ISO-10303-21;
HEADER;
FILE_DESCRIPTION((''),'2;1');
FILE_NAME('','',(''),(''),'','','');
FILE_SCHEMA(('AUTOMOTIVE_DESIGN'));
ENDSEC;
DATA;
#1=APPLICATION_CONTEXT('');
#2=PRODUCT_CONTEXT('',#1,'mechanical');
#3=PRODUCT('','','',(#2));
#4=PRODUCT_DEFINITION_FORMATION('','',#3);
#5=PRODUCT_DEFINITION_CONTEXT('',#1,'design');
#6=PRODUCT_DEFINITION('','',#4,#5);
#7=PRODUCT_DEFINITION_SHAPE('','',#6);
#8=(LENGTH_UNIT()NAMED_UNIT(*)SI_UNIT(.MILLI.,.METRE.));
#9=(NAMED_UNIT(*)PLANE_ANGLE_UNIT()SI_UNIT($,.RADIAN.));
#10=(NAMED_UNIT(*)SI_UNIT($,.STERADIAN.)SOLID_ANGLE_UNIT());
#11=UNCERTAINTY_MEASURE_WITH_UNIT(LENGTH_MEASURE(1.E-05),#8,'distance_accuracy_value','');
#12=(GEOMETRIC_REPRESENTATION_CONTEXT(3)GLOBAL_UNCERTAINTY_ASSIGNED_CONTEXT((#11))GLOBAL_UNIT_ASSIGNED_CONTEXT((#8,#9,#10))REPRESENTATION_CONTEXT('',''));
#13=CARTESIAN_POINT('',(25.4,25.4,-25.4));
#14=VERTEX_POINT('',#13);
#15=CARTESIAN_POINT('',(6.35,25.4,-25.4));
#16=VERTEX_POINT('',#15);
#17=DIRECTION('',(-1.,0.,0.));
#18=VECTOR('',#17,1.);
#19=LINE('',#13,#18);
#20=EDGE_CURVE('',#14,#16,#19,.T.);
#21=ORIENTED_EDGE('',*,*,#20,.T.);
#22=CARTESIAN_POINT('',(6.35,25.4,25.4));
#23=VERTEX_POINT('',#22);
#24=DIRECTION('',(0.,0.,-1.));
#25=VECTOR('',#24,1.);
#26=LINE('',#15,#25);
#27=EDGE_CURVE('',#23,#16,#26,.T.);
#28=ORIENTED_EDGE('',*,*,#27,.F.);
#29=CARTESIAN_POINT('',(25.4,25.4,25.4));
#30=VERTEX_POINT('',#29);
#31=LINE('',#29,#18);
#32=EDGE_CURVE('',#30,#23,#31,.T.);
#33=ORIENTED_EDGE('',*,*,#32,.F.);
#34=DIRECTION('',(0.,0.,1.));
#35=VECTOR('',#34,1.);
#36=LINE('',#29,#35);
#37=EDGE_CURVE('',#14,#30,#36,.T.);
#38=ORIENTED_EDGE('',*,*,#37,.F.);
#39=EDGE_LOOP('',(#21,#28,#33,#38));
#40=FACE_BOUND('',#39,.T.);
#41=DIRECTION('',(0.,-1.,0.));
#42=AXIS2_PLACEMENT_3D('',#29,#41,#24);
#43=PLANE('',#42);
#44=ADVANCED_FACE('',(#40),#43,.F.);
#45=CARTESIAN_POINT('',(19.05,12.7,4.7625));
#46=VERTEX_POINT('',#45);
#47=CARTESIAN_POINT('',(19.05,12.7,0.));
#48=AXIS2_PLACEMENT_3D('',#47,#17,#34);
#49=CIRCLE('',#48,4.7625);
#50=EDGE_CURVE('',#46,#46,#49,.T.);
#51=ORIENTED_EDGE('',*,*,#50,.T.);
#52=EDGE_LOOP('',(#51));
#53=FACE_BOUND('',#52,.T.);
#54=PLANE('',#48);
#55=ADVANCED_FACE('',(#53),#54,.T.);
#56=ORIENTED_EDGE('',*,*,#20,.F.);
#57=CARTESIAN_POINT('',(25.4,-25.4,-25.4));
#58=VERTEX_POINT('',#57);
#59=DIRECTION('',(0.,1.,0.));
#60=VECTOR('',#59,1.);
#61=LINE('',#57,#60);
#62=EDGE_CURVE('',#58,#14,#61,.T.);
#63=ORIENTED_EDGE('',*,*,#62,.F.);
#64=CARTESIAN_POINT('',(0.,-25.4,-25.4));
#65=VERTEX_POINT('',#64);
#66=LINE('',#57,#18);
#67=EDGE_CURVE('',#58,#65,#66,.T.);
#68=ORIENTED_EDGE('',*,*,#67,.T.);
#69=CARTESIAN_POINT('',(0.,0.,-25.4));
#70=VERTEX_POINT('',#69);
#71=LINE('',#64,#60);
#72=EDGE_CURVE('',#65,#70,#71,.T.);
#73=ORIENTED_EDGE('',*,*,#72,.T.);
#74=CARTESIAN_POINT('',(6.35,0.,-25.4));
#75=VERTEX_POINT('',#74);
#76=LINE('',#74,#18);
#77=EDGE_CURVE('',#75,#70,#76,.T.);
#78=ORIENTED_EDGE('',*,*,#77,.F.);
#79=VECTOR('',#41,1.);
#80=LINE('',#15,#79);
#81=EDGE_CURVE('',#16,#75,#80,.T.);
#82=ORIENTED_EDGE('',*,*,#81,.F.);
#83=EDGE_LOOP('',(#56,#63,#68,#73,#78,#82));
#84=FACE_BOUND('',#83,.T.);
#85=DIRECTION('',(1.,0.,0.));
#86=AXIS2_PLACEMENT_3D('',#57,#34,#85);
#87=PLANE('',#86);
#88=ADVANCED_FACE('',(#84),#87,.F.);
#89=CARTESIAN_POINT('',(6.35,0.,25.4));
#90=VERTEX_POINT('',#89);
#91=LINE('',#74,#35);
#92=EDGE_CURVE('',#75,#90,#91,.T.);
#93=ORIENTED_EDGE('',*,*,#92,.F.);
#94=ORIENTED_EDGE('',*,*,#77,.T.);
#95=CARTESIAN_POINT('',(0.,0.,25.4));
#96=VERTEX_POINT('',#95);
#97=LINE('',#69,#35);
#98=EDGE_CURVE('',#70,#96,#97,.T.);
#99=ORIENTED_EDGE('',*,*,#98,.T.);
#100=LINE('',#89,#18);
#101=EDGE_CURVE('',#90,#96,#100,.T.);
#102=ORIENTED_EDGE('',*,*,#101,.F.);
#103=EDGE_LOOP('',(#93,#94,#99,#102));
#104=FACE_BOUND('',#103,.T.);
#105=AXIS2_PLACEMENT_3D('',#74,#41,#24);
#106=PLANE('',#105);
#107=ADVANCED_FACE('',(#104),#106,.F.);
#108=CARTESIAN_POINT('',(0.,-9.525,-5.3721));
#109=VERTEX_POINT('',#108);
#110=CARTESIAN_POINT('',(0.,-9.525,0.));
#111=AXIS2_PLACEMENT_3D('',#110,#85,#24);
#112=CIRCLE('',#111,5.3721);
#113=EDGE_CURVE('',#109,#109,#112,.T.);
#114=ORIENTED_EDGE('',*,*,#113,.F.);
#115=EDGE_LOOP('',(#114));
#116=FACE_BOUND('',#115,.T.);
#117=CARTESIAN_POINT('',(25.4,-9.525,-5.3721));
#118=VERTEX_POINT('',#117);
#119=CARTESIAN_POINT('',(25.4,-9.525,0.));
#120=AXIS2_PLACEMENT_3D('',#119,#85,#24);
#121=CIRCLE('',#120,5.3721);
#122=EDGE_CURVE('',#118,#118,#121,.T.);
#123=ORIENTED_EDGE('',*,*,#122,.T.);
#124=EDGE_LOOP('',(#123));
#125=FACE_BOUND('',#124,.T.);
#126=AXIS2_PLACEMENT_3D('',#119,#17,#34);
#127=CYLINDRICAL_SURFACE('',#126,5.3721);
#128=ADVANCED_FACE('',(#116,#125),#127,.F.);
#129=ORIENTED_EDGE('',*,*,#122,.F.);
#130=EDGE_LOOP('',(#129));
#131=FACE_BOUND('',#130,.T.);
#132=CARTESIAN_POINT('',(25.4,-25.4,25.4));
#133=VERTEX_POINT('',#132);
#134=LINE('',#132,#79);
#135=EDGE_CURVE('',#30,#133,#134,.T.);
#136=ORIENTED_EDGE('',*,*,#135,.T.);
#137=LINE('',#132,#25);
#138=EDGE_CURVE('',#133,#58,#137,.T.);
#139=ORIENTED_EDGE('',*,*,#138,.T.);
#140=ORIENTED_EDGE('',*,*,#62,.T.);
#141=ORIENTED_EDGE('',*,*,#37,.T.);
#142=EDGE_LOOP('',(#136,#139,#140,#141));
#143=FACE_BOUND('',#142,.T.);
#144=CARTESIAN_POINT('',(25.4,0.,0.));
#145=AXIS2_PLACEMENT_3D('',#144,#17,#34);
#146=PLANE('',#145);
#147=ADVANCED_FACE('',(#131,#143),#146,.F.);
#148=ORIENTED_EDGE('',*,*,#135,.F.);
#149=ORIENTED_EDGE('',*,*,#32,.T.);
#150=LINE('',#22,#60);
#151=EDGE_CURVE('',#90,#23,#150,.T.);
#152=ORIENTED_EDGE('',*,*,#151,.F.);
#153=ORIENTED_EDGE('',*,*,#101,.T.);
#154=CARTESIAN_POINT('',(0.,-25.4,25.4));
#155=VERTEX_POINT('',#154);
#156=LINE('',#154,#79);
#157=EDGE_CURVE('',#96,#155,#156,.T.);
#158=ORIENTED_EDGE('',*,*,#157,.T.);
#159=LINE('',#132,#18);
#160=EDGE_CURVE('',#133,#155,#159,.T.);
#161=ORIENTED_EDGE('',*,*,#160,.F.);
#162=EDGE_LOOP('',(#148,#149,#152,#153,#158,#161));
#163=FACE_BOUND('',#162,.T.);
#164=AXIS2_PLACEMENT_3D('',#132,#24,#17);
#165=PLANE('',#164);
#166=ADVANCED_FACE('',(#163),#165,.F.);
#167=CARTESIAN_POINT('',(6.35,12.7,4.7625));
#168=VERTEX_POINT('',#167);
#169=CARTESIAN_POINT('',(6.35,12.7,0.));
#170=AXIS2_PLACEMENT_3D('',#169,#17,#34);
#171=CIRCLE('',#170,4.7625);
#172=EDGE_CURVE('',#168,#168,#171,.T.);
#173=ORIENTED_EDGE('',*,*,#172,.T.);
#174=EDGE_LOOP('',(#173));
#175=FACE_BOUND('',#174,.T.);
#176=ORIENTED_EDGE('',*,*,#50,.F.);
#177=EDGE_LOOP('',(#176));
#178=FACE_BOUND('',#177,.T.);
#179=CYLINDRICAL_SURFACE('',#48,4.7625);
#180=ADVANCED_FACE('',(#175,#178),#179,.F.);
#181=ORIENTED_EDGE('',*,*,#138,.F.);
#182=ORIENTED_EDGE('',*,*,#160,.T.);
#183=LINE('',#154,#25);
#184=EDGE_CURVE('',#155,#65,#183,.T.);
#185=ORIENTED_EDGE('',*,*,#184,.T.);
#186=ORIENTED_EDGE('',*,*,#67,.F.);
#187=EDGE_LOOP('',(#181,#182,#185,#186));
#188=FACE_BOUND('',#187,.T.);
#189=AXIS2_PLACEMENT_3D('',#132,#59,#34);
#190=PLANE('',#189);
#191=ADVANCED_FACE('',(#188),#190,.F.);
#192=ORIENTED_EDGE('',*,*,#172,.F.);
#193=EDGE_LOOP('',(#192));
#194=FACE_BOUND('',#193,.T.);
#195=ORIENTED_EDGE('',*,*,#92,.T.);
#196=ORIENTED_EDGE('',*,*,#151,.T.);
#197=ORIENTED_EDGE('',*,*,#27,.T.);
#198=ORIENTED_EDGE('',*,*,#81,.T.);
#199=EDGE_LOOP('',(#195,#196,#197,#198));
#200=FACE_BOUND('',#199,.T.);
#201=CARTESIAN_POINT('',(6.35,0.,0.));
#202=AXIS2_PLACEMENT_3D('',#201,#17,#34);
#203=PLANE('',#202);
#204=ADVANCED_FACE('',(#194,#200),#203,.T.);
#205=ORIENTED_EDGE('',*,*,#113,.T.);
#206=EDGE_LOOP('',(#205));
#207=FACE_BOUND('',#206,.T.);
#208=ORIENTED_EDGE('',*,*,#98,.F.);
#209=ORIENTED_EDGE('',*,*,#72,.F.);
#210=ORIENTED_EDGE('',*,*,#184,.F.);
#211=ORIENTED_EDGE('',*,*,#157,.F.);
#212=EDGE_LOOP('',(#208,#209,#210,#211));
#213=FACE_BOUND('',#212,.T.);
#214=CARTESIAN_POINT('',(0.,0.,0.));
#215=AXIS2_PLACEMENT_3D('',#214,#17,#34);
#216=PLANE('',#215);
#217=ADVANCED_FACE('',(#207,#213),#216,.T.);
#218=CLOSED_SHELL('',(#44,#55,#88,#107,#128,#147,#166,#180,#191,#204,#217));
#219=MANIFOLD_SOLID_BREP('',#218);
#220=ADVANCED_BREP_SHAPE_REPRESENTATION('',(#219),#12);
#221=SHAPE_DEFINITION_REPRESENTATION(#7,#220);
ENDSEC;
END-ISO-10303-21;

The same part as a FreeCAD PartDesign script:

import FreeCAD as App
import Part
import Sketcher
Q = App.Units.Quantity

doc = App.newDocument("Part")
body = doc.addObject("PartDesign::Body", "Body")

# Sketch on YZ plane
sketch1 = body.newObject("Sketcher::SketchObject", "Sketch")
sketch1.AttachmentSupport = (doc.getObject("YZ_Plane"), [""])
sketch1.MapMode = "FlatFace"
sketch1.addGeometry([
    Part.LineSegment(App.Vector(25.4, 25.4, 0), App.Vector(-25.4, 25.4, 0)),  # 0
    Part.LineSegment(App.Vector(-25.4, 25.4, 0), App.Vector(-25.4, -25.4, 0)),  # 1
    Part.LineSegment(App.Vector(-25.4, -25.4, 0), App.Vector(25.4, -25.4, 0)),  # 2
    Part.LineSegment(App.Vector(25.4, -25.4, 0), App.Vector(25.4, 25.4, 0)),  # 3
    Part.Circle(App.Vector(-9.525, 0, 0), App.Vector(0, 0, 1), 5.3721),  # 4
], False)
sketch1.addConstraint([
    Sketcher.Constraint("Coincident", 0, 2, 1, 1),
    Sketcher.Constraint("Coincident", 1, 2, 2, 1),
    Sketcher.Constraint("Coincident", 2, 2, 3, 1),
    Sketcher.Constraint("Coincident", 3, 2, 0, 1),
    Sketcher.Constraint("Horizontal", 0),
    Sketcher.Constraint("Vertical", 1),
    Sketcher.Constraint("Horizontal", 2),
    Sketcher.Constraint("Vertical", 3),
    Sketcher.Constraint("Symmetric", 0, 2, 2, 2, -1, 1),
    Sketcher.Constraint("PointOnObject", 4, 3, -1),
    Sketcher.Constraint("Equal", 2, 1),
    Sketcher.Constraint("DistanceX", 0, 2, 0, 1, Q("2 in")),
    Sketcher.Constraint("Diameter", 4, Q("0.423 in")),
    Sketcher.Constraint("DistanceX", 4, 3, -1, 1, Q("0.375 in")),
])
pad1 = body.newObject("PartDesign::Pad", "Pad")
pad1.Profile = sketch1
pad1.Length = Q("1 in")

# Sketch on YZ plane
sketch2 = body.newObject("Sketcher::SketchObject", "Sketch001")
sketch2.AttachmentSupport = (doc.getObject("YZ_Plane"), [""])
sketch2.MapMode = "FlatFace"
sketch2.addGeometry([
    Part.LineSegment(App.Vector(25.4, -25.4, 0), App.Vector(0, -25.4, 0)),
    Part.LineSegment(App.Vector(0, -25.4, 0), App.Vector(0, 25.4, 0)),
    Part.LineSegment(App.Vector(0, 25.4, 0), App.Vector(25.4, 25.4, 0)),
    Part.LineSegment(App.Vector(25.4, 25.4, 0), App.Vector(25.4, -25.4, 0)),
], False)
sketch2.addConstraint([
    Sketcher.Constraint("Coincident", 0, 2, 1, 1),
    Sketcher.Constraint("Coincident", 1, 2, 2, 1),
    Sketcher.Constraint("Coincident", 2, 2, 3, 1),
    Sketcher.Constraint("Coincident", 3, 2, 0, 1),
    Sketcher.Constraint("Horizontal", 0),
    Sketcher.Constraint("Vertical", 1),
    Sketcher.Constraint("Horizontal", 2),
    Sketcher.Constraint("Vertical", 3),
    Sketcher.Constraint("Symmetric", 0, 2, 1, 2, -1, 1),
    Sketcher.Constraint("DistanceX", 0, 2, 0, 1, Q("1 in")),
    Sketcher.Constraint("DistanceY", 1, 1, 1, 2, Q("2 in")),
])
pocket1 = body.newObject("PartDesign::Pocket", "Pocket")
pocket1.Profile = sketch2
pocket1.Length = Q("0.25 in")
pocket1.Reversed = True

# Sketch on YZ plane
sketch3 = body.newObject("Sketcher::SketchObject", "Sketch002")
sketch3.AttachmentSupport = (doc.getObject("YZ_Plane"), [""])
sketch3.MapMode = "FlatFace"
sketch3.AttachmentOffset = App.Placement(App.Vector(0, 0, 0.25 * 25.4), App.Rotation())
sketch3.addGeometry(Part.Circle(App.Vector(12.7, 0, 0), App.Vector(0, 0, 1), 4.7625), False)
sketch3.addConstraint([
    Sketcher.Constraint("PointOnObject", 0, 3, -1),
    Sketcher.Constraint("Diameter", 0, Q("0.375 in")),
    Sketcher.Constraint("DistanceX", -1, 1, 0, 3, Q("0.5 in")),
])
pocket2 = body.newObject("PartDesign::Pocket", "Pocket001")
pocket2.Profile = sketch3
pocket2.Length = Q("0.5 in")
pocket2.Reversed = True

doc.recompute()
